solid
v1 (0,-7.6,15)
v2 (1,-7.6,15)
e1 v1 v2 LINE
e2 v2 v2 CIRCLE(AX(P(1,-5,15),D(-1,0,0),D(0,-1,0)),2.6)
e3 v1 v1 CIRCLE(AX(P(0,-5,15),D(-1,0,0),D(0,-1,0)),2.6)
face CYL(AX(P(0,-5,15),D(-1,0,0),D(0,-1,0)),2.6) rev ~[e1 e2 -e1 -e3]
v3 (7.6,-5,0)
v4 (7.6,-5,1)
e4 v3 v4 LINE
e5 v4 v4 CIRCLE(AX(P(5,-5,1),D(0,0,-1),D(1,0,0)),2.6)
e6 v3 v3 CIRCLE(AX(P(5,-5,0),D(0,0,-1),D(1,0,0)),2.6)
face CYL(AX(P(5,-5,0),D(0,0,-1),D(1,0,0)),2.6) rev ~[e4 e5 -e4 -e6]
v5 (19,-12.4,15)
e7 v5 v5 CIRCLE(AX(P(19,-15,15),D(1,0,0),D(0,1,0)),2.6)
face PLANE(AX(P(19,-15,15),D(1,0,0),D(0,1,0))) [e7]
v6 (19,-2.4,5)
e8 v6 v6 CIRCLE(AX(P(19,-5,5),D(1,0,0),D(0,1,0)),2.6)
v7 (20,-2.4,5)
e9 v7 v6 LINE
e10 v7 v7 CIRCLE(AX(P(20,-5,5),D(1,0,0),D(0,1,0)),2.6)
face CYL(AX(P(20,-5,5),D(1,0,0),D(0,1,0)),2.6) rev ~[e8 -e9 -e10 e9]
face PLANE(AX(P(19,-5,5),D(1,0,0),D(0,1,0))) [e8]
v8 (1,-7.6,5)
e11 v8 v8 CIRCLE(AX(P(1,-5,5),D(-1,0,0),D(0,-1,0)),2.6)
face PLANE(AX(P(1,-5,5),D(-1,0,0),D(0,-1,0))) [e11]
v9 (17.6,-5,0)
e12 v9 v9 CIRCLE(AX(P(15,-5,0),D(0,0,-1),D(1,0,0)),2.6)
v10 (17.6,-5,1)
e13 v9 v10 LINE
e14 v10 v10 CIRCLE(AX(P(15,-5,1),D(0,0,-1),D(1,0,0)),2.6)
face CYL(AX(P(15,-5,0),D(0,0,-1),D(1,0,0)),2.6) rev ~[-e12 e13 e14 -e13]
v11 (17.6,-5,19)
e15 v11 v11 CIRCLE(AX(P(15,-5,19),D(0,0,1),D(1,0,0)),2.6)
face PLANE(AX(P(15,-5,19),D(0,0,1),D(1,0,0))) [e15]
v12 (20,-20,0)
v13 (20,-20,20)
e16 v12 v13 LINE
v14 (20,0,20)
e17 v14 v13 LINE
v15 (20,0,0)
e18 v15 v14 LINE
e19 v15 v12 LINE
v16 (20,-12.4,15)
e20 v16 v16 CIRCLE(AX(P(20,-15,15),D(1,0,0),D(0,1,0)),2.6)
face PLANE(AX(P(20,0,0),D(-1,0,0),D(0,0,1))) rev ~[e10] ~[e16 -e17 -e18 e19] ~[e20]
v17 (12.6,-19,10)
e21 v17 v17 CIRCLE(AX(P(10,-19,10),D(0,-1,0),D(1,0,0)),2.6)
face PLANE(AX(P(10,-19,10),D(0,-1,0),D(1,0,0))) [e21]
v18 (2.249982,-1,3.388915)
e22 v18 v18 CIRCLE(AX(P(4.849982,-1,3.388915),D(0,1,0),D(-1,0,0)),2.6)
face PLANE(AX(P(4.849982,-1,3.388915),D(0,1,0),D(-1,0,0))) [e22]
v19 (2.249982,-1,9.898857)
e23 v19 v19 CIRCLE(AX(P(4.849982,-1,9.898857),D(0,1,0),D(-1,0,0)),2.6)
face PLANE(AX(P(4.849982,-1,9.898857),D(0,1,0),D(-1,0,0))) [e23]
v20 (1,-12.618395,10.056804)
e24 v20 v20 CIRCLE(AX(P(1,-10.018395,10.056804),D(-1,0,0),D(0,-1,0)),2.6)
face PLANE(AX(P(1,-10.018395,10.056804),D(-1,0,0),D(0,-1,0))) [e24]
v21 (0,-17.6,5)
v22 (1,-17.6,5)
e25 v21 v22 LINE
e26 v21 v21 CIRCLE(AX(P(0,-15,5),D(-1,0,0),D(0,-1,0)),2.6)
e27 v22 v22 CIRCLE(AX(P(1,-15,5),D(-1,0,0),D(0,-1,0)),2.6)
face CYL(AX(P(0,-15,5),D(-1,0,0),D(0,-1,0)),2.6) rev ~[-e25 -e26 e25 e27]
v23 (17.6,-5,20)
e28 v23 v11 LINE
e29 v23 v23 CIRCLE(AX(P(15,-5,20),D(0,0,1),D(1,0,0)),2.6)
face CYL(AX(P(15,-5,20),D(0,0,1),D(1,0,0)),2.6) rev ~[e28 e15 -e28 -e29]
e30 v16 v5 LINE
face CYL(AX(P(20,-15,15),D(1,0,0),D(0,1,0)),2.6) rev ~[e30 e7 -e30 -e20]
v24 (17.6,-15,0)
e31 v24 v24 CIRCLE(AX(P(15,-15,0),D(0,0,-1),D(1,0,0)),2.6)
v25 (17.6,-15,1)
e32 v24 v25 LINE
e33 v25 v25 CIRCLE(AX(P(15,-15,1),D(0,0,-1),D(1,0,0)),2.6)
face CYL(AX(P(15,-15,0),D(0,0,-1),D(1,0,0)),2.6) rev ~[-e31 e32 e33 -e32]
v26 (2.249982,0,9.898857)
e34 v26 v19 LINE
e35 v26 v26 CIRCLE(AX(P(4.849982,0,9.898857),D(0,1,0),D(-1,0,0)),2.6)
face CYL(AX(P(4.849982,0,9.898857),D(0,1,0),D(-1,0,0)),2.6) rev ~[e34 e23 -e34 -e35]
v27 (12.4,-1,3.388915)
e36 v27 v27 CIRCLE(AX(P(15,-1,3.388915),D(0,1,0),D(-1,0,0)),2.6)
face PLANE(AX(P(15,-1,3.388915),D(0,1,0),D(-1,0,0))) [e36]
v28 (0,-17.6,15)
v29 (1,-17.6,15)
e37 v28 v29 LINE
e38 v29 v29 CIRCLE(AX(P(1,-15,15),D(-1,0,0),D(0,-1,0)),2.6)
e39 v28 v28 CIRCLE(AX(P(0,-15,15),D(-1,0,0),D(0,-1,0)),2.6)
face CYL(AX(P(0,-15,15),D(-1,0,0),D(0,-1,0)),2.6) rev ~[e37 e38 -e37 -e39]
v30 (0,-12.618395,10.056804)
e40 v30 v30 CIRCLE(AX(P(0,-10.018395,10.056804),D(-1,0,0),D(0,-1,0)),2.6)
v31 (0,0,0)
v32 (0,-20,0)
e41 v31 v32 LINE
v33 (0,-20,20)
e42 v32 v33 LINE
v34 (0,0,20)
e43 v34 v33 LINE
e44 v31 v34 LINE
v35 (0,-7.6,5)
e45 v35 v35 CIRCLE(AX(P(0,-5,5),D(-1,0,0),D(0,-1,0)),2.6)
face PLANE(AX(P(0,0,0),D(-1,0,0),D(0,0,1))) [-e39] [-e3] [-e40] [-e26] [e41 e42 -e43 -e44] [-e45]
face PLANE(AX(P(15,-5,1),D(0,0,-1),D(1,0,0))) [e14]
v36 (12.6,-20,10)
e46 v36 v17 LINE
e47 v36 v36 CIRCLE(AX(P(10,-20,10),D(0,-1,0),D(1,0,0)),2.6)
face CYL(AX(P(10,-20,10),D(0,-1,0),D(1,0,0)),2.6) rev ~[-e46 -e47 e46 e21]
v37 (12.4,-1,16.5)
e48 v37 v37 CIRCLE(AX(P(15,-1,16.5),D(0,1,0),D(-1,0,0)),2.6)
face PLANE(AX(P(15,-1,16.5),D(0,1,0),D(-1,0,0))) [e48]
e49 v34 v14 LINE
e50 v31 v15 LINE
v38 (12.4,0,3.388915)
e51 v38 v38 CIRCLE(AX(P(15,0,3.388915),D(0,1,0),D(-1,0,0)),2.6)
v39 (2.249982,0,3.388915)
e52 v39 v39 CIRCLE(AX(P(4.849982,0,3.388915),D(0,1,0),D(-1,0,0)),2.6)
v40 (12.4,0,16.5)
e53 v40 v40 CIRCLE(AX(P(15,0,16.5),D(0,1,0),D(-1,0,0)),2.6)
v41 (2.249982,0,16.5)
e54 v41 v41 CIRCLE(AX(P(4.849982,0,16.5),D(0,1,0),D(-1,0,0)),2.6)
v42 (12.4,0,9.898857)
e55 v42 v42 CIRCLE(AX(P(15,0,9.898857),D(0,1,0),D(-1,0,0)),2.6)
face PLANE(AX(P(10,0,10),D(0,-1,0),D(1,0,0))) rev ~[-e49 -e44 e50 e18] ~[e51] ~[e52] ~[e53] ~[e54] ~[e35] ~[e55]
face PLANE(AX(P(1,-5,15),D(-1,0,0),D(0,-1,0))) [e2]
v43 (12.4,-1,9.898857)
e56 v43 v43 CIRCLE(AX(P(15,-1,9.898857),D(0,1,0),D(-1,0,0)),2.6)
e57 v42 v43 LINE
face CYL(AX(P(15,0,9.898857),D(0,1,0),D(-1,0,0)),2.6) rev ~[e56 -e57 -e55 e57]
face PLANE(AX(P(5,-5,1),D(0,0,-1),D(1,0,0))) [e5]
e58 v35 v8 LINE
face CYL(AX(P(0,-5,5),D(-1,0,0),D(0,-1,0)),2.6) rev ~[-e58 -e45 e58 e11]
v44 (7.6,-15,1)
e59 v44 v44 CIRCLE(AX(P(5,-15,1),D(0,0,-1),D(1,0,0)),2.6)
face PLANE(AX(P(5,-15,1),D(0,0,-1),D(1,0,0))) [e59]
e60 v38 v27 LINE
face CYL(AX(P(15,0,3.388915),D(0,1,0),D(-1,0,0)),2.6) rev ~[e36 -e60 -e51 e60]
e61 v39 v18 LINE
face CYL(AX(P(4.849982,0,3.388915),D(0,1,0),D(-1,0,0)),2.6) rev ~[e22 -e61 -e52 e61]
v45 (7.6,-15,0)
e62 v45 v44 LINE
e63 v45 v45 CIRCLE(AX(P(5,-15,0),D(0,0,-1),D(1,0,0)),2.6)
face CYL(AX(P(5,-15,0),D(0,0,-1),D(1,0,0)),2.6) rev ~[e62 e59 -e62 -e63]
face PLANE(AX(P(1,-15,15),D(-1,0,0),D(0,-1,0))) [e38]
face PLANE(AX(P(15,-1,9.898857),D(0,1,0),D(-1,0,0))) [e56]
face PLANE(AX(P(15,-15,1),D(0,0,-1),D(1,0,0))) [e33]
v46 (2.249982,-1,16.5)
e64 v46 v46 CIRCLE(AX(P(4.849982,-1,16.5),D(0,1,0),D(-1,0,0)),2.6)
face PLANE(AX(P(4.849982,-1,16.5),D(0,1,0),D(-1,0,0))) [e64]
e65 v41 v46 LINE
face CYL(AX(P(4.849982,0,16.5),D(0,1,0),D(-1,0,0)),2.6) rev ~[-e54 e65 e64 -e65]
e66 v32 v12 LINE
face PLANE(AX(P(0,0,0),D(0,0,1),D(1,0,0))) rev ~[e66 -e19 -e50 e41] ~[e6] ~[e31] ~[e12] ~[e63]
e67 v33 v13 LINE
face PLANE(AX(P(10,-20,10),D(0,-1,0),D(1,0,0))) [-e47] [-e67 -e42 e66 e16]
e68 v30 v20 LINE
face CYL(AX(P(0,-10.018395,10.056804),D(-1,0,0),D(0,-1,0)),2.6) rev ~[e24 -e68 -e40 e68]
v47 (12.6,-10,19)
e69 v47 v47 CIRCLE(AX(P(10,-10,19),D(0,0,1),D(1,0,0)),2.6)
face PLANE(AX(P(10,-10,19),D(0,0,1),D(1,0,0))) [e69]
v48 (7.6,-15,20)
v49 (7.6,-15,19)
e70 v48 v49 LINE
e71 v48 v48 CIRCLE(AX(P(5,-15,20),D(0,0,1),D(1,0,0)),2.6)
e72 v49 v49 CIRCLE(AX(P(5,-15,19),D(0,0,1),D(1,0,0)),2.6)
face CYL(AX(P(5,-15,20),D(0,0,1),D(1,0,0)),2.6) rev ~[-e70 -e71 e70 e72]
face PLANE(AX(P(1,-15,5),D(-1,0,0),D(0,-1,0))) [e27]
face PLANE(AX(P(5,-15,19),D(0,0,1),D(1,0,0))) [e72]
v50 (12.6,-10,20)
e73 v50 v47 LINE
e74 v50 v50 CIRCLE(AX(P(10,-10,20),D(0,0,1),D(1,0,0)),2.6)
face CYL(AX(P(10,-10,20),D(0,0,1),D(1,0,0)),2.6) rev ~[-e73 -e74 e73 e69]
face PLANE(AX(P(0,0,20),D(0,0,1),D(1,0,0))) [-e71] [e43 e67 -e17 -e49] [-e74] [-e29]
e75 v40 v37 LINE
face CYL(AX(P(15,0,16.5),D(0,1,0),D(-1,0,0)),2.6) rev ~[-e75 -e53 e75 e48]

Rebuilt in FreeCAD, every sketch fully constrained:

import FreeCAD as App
import Part
import Sketcher
Q = App.Units.Quantity


def add_polygon(sketch, points):
    """Adds a closed chain of lines whose ends are joined by coincident constraints."""
    first, n = sketch.GeometryCount, len(points)
    for a, b in zip(points, points[1:] + points[:1]):
        sketch.addGeometry(Part.LineSegment(App.Vector(*a, 0), App.Vector(*b, 0)), False)
    for i in range(n):
        sketch.addConstraint(Sketcher.Constraint("Coincident", first + i, 2, first + (i + 1) % n, 1))

doc = App.newDocument("Part")
body = doc.addObject("PartDesign::Body", "Body")

# Sketch on XZ plane
sketch1 = body.newObject("Sketcher::SketchObject", "Sketch")
sketch1.AttachmentSupport = (doc.getObject("XZ_Plane"), [""])
sketch1.MapMode = "FlatFace"
add_polygon(sketch1, [(0, 20), (0, 0), (20, 0), (20, 20)])  # lines 0-3
sketch1.addConstraint(Sketcher.Constraint("Vertical", 0))
sketch1.addConstraint(Sketcher.Constraint("Horizontal", 1))
sketch1.addConstraint(Sketcher.Constraint("Vertical", 2))
sketch1.addConstraint(Sketcher.Constraint("Horizontal", 3))
sketch1.addConstraint(Sketcher.Constraint("Coincident", 0, 2, -1, 1))
sketch1.addConstraint(Sketcher.Constraint("Equal", 3, 0))
sketch1.addConstraint(Sketcher.Constraint("DistanceX", 1, 1, 1, 2, Q("20 mm")))
pad1 = body.newObject("PartDesign::Pad", "Pad")
pad1.Profile = sketch1
pad1.Length = 20

# Sketch on XZ plane
sketch2 = body.newObject("Sketcher::SketchObject", "Sketch001")
sketch2.AttachmentSupport = (doc.getObject("XZ_Plane"), [""])
sketch2.MapMode = "FlatFace"
sketch2.AttachmentOffset = App.Placement(App.Vector(0, 0, 20), App.Rotation())
sketch2.addGeometry(Part.Circle(App.Vector(10, 10, 0), App.Vector(0, 0, 1), 2.6), False)
sketch2.addConstraint(Sketcher.Constraint("Diameter", 0, Q("5.2 mm")))
sketch2.addConstraint(Sketcher.Constraint("DistanceX", -1, 1, 0, 3, Q("10 mm")))
sketch2.addConstraint(Sketcher.Constraint("DistanceY", -1, 1, 0, 3, Q("10 mm")))
pocket1 = body.newObject("PartDesign::Pocket", "Pocket")
pocket1.Profile = sketch2
pocket1.Length = 1

# Sketch on XZ plane
sketch3 = body.newObject("Sketcher::SketchObject", "Sketch002")
sketch3.AttachmentSupport = (doc.getObject("XZ_Plane"), [""])
sketch3.MapMode = "FlatFace"
sketch3.addGeometry(Part.Circle(App.Vector(15, 16.5, 0), App.Vector(0, 0, 1), 2.6), False)
sketch3.addGeometry(Part.Circle(App.Vector(4.8, 16.5, 0), App.Vector(0, 0, 1), 2.6), False)
sketch3.addGeometry(Part.Circle(App.Vector(15, 3.4, 0), App.Vector(0, 0, 1), 2.6), False)
sketch3.addGeometry(Part.Circle(App.Vector(4.8, 3.4, 0), App.Vector(0, 0, 1), 2.6), False)
sketch3.addGeometry(Part.Circle(App.Vector(15, 9.9, 0), App.Vector(0, 0, 1), 2.6), False)
sketch3.addGeometry(Part.Circle(App.Vector(4.8, 9.9, 0), App.Vector(0, 0, 1), 2.6), False)
sketch3.addConstraint(Sketcher.Constraint("Equal", 0, 1))
sketch3.addConstraint(Sketcher.Constraint("Equal", 1, 2))
sketch3.addConstraint(Sketcher.Constraint("Equal", 2, 3))
sketch3.addConstraint(Sketcher.Constraint("Equal", 3, 4))
sketch3.addConstraint(Sketcher.Constraint("Equal", 4, 5))
sketch3.addConstraint(Sketcher.Constraint("Horizontal", 0, 3, 1, 3))
sketch3.addConstraint(Sketcher.Constraint("Horizontal", 2, 3, 3, 3))
sketch3.addConstraint(Sketcher.Constraint("Horizontal", 4, 3, 5, 3))
sketch3.addConstraint(Sketcher.Constraint("Vertical", 0, 3, 2, 3))
sketch3.addConstraint(Sketcher.Constraint("Vertical", 1, 3, 3, 3))
sketch3.addConstraint(Sketcher.Constraint("Vertical", 2, 3, 4, 3))
sketch3.addConstraint(Sketcher.Constraint("Vertical", 3, 3, 5, 3))
sketch3.addConstraint(Sketcher.Constraint("Diameter", 0, Q("5.2 mm")))
sketch3.addConstraint(Sketcher.Constraint("DistanceX", -1, 1, 0, 3, Q("15 mm")))
sketch3.addConstraint(Sketcher.Constraint("DistanceY", -1, 1, 0, 3, Q("16.5 mm")))
sketch3.addConstraint(Sketcher.Constraint("DistanceX", -1, 1, 1, 3, Q("4.849982 mm")))
sketch3.addConstraint(Sketcher.Constraint("DistanceY", 2, 3, 4, 3, Q("6.509942 mm")))
sketch3.addConstraint(Sketcher.Constraint("DistanceY", -1, 1, 2, 3, Q("3.388915 mm")))
pocket2 = body.newObject("PartDesign::Pocket", "Pocket001")
pocket2.Profile = sketch3
pocket2.Length = 1
pocket2.Reversed = True

# Sketch on YZ plane
sketch4 = body.newObject("Sketcher::SketchObject", "Sketch003")
sketch4.AttachmentSupport = (doc.getObject("YZ_Plane"), [""])
sketch4.MapMode = "FlatFace"
sketch4.addGeometry(Part.Circle(App.Vector(-10, 10.1, 0), App.Vector(0, 0, 1), 2.6), False)
sketch4.addGeometry(Part.Circle(App.Vector(-5, 15, 0), App.Vector(0, 0, 1), 2.6), False)
sketch4.addGeometry(Part.Circle(App.Vector(-15, 5, 0), App.Vector(0, 0, 1), 2.6), False)
sketch4.addGeometry(Part.Circle(App.Vector(-5, 5, 0), App.Vector(0, 0, 1), 2.6), False)
sketch4.addGeometry(Part.Circle(App.Vector(-15, 15, 0), App.Vector(0, 0, 1), 2.6), False)
sketch4.addConstraint(Sketcher.Constraint("Equal", 0, 1))
sketch4.addConstraint(Sketcher.Constraint("Equal", 1, 2))
sketch4.addConstraint(Sketcher.Constraint("Equal", 2, 3))
sketch4.addConstraint(Sketcher.Constraint("Equal", 3, 4))
sketch4.addConstraint(Sketcher.Constraint("Horizontal", 2, 3, 3, 3))
sketch4.addConstraint(Sketcher.Constraint("Horizontal", 1, 3, 4, 3))
sketch4.addConstraint(Sketcher.Constraint("Vertical", 1, 3, 3, 3))
sketch4.addConstraint(Sketcher.Constraint("Vertical", 2, 3, 4, 3))
sketch4.addConstraint(Sketcher.Constraint("Diameter", 0, Q("5.2 mm")))
sketch4.addConstraint(Sketcher.Constraint("DistanceX", 1, 3, -1, 1, Q("5 mm")))
sketch4.addConstraint(Sketcher.Constraint("DistanceY", -1, 1, 1, 3, Q("15 mm")))
sketch4.addConstraint(Sketcher.Constraint("DistanceX", 2, 3, -1, 1, Q("15 mm")))
sketch4.addConstraint(Sketcher.Constraint("DistanceY", -1, 1, 2, 3, Q("5 mm")))
sketch4.addConstraint(Sketcher.Constraint("DistanceX", 0, 3, -1, 1, Q("10.018395 mm")))
sketch4.addConstraint(Sketcher.Constraint("DistanceY", -1, 1, 0, 3, Q("10.056804 mm")))
pocket3 = body.newObject("PartDesign::Pocket", "Pocket002")
pocket3.Profile = sketch4
pocket3.Length = 1
pocket3.Reversed = True

# Sketch on YZ plane
sketch5 = body.newObject("Sketcher::SketchObject", "Sketch004")
sketch5.AttachmentSupport = (doc.getObject("YZ_Plane"), [""])
sketch5.MapMode = "FlatFace"
sketch5.AttachmentOffset = App.Placement(App.Vector(0, 0, 20), App.Rotation())
sketch5.addGeometry(Part.Circle(App.Vector(-15, 15, 0), App.Vector(0, 0, 1), 2.6), False)
sketch5.addGeometry(Part.Circle(App.Vector(-5, 5, 0), App.Vector(0, 0, 1), 2.6), False)
sketch5.addConstraint(Sketcher.Constraint("Equal", 0, 1))
sketch5.addConstraint(Sketcher.Constraint("Diameter", 0, Q("5.2 mm")))
sketch5.addConstraint(Sketcher.Constraint("DistanceX", 0, 3, -1, 1, Q("15 mm")))
sketch5.addConstraint(Sketcher.Constraint("DistanceY", -1, 1, 0, 3, Q("15 mm")))
sketch5.addConstraint(Sketcher.Constraint("DistanceX", 1, 3, -1, 1, Q("5 mm")))
sketch5.addConstraint(Sketcher.Constraint("DistanceY", -1, 1, 1, 3, Q("5 mm")))
pocket4 = body.newObject("PartDesign::Pocket", "Pocket003")
pocket4.Profile = sketch5
pocket4.Length = 1

# Sketch on XY plane
sketch6 = body.newObject("Sketcher::SketchObject", "Sketch005")
sketch6.AttachmentSupport = (doc.getObject("XY_Plane"), [""])
sketch6.MapMode = "FlatFace"
sketch6.AttachmentOffset = App.Placement(App.Vector(0, 0, 20), App.Rotation())
sketch6.addGeometry(Part.Circle(App.Vector(10, -10, 0), App.Vector(0, 0, 1), 2.6), False)
sketch6.addGeometry(Part.Circle(App.Vector(15, -5, 0), App.Vector(0, 0, 1), 2.6), False)
sketch6.addGeometry(Part.Circle(App.Vector(5, -15, 0), App.Vector(0, 0, 1), 2.6), False)
sketch6.addConstraint(Sketcher.Constraint("Equal", 0, 1))
sketch6.addConstraint(Sketcher.Constraint("Equal", 1, 2))
sketch6.addConstraint(Sketcher.Constraint("Diameter", 0, Q("5.2 mm")))
sketch6.addConstraint(Sketcher.Constraint("DistanceX", -1, 1, 0, 3, Q("10 mm")))
sketch6.addConstraint(Sketcher.Constraint("DistanceY", 0, 3, -1, 1, Q("10 mm")))
sketch6.addConstraint(Sketcher.Constraint("DistanceX", -1, 1, 1, 3, Q("15 mm")))
sketch6.addConstraint(Sketcher.Constraint("DistanceY", 1, 3, -1, 1, Q("5 mm")))
sketch6.addConstraint(Sketcher.Constraint("DistanceX", -1, 1, 2, 3, Q("5 mm")))
sketch6.addConstraint(Sketcher.Constraint("DistanceY", 2, 3, -1, 1, Q("15 mm")))
pocket5 = body.newObject("PartDesign::Pocket", "Pocket004")
pocket5.Profile = sketch6
pocket5.Length = 1

# Sketch on XY plane
sketch7 = body.newObject("Sketcher::SketchObject", "Sketch006")
sketch7.AttachmentSupport = (doc.getObject("XY_Plane"), [""])
sketch7.MapMode = "FlatFace"
sketch7.addGeometry(Part.Circle(App.Vector(5, -15, 0), App.Vector(0, 0, 1), 2.6), False)
sketch7.addGeometry(Part.Circle(App.Vector(5, -5, 0), App.Vector(0, 0, 1), 2.6), False)
sketch7.addGeometry(Part.Circle(App.Vector(15, -15, 0), App.Vector(0, 0, 1), 2.6), False)
sketch7.addGeometry(Part.Circle(App.Vector(15, -5, 0), App.Vector(0, 0, 1), 2.6), False)
sketch7.addConstraint(Sketcher.Constraint("Equal", 0, 1))
sketch7.addConstraint(Sketcher.Constraint("Equal", 1, 2))
sketch7.addConstraint(Sketcher.Constraint("Equal", 2, 3))
sketch7.addConstraint(Sketcher.Constraint("Horizontal", 0, 3, 2, 3))
sketch7.addConstraint(Sketcher.Constraint("Horizontal", 1, 3, 3, 3))
sketch7.addConstraint(Sketcher.Constraint("Vertical", 0, 3, 1, 3))
sketch7.addConstraint(Sketcher.Constraint("Vertical", 2, 3, 3, 3))
sketch7.addConstraint(Sketcher.Constraint("Diameter", 0, Q("5.2 mm")))
sketch7.addConstraint(Sketcher.Constraint("DistanceX", -1, 1, 0, 3, Q("5 mm")))
sketch7.addConstraint(Sketcher.Constraint("DistanceY", 0, 3, -1, 1, Q("15 mm")))
sketch7.addConstraint(Sketcher.Constraint("DistanceY", 1, 3, -1, 1, Q("5 mm")))
sketch7.addConstraint(Sketcher.Constraint("DistanceX", -1, 1, 2, 3, Q("15 mm")))
pocket6 = body.newObject("PartDesign::Pocket", "Pocket005")
pocket6.Profile = sketch7
pocket6.Length = 1

# Sketch on XY plane
sketch8 = body.newObject("Sketcher::SketchObject", "Sketch007")
sketch8.AttachmentSupport = (doc.getObject("XY_Plane"), [""])
sketch8.MapMode = "FlatFace"
sketch8.addGeometry(Part.Circle(App.Vector(5, -15, 0), App.Vector(0, 0, 1), 2.6), False)
sketch8.addGeometry(Part.Circle(App.Vector(5, -5, 0), App.Vector(0, 0, 1), 2.6), False)
sketch8.addGeometry(Part.Circle(App.Vector(15, -15, 0), App.Vector(0, 0, 1), 2.6), False)
sketch8.addGeometry(Part.Circle(App.Vector(15, -5, 0), App.Vector(0, 0, 1), 2.6), False)
sketch8.addConstraint(Sketcher.Constraint("Equal", 0, 1))
sketch8.addConstraint(Sketcher.Constraint("Equal", 1, 2))
sketch8.addConstraint(Sketcher.Constraint("Equal", 2, 3))
sketch8.addConstraint(Sketcher.Constraint("Horizontal", 0, 3, 2, 3))
sketch8.addConstraint(Sketcher.Constraint("Horizontal", 1, 3, 3, 3))
sketch8.addConstraint(Sketcher.Constraint("Vertical", 0, 3, 1, 3))
sketch8.addConstraint(Sketcher.Constraint("Vertical", 2, 3, 3, 3))
sketch8.addConstraint(Sketcher.Constraint("Diameter", 0, Q("5.2 mm")))
sketch8.addConstraint(Sketcher.Constraint("DistanceX", -1, 1, 0, 3, Q("5 mm")))
sketch8.addConstraint(Sketcher.Constraint("DistanceY", 0, 3, -1, 1, Q("15 mm")))
sketch8.addConstraint(Sketcher.Constraint("DistanceY", 1, 3, -1, 1, Q("5 mm")))
sketch8.addConstraint(Sketcher.Constraint("DistanceX", -1, 1, 2, 3, Q("15 mm")))
pocket7 = body.newObject("PartDesign::Pocket", "Pocket006")
pocket7.Profile = sketch8
pocket7.Length = 1
pocket7.Reversed = True

doc.recompute()
